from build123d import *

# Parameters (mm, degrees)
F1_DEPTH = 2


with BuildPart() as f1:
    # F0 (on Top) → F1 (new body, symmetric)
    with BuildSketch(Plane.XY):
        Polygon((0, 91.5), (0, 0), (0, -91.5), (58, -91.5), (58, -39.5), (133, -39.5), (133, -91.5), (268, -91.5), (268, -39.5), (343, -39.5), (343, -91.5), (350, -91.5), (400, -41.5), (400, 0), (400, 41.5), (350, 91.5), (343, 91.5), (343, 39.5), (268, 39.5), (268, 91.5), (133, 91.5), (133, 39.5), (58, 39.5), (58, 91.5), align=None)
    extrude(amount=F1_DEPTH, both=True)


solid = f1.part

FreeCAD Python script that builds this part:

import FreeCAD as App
import Part
import Sketcher

V = App.Vector
Q = App.Units.Quantity

doc = App.newDocument("Part")
body = doc.addObject("PartDesign::Body", "Body")

# Sketch on XY plane
sketch1 = body.newObject("Sketcher::SketchObject", "Sketch")
sketch1.AttachmentSupport = (doc.getObject("XY_Plane"), [""])
sketch1.MapMode = "FlatFace"
sketch1.addGeometry([
    Part.LineSegment(V(0, 92, 0), V(0, -92, 0)),  # 0
    Part.LineSegment(V(0, -92, 0), V(58, -92, 0)),  # 1
    Part.LineSegment(V(58, -92, 0), V(58, -40, 0)),  # 2
    Part.LineSegment(V(58, -40, 0), V(133, -40, 0)),  # 3
    Part.LineSegment(V(133, -40, 0), V(133, -92, 0)),  # 4
    Part.LineSegment(V(133, -92, 0), V(268, -92, 0)),  # 5
    Part.LineSegment(V(268, -92, 0), V(268, -40, 0)),  # 6
    Part.LineSegment(V(268, -40, 0), V(343, -40, 0)),  # 7
    Part.LineSegment(V(343, -40, 0), V(343, -92, 0)),  # 8
    Part.LineSegment(V(343, -92, 0), V(350, -92, 0)),  # 9
    Part.LineSegment(V(350, -92, 0), V(400, -42, 0)),  # 10
    Part.LineSegment(V(400, -42, 0), V(400, 42, 0)),  # 11
    Part.LineSegment(V(400, 42, 0), V(350, 92, 0)),  # 12
    Part.LineSegment(V(350, 92, 0), V(343, 92, 0)),  # 13
    Part.LineSegment(V(343, 92, 0), V(343, 40, 0)),  # 14
    Part.LineSegment(V(343, 40, 0), V(268, 40, 0)),  # 15
    Part.LineSegment(V(268, 40, 0), V(268, 92, 0)),  # 16
    Part.LineSegment(V(268, 92, 0), V(133, 92, 0)),  # 17
    Part.LineSegment(V(133, 92, 0), V(133, 40, 0)),  # 18
    Part.LineSegment(V(133, 40, 0), V(58, 40, 0)),  # 19
    Part.LineSegment(V(58, 40, 0), V(58, 92, 0)),  # 20
    Part.LineSegment(V(58, 92, 0), V(0, 92, 0)),  # 21
], False)
sketch1.addConstraint([
    Sketcher.Constraint("Coincident", 0, 2, 1, 1),
    Sketcher.Constraint("Coincident", 1, 2, 2, 1),
    Sketcher.Constraint("Coincident", 2, 2, 3, 1),
    Sketcher.Constraint("Coincident", 3, 2, 4, 1),
    Sketcher.Constraint("Coincident", 4, 2, 5, 1),
    Sketcher.Constraint("Coincident", 5, 2, 6, 1),
    Sketcher.Constraint("Coincident", 6, 2, 7, 1),
    Sketcher.Constraint("Coincident", 7, 2, 8, 1),
    Sketcher.Constraint("Coincident", 8, 2, 9, 1),
    Sketcher.Constraint("Coincident", 9, 2, 10, 1),
    Sketcher.Constraint("Coincident", 10, 2, 11, 1),
    Sketcher.Constraint("Coincident", 11, 2, 12, 1),
    Sketcher.Constraint("Coincident", 12, 2, 13, 1),
    Sketcher.Constraint("Coincident", 13, 2, 14, 1),
    Sketcher.Constraint("Coincident", 14, 2, 15, 1),
    Sketcher.Constraint("Coincident", 15, 2, 16, 1),
    Sketcher.Constraint("Coincident", 16, 2, 17, 1),
    Sketcher.Constraint("Coincident", 17, 2, 18, 1),
    Sketcher.Constraint("Coincident", 18, 2, 19, 1),
    Sketcher.Constraint("Coincident", 19, 2, 20, 1),
    Sketcher.Constraint("Coincident", 20, 2, 21, 1),
    Sketcher.Constraint("Coincident", 21, 2, 0, 1),
    Sketcher.Constraint("Vertical", 0),
    Sketcher.Constraint("Horizontal", 1),
    Sketcher.Constraint("Vertical", 2),
    Sketcher.Constraint("Horizontal", 3),
    Sketcher.Constraint("Vertical", 4),
    Sketcher.Constraint("Horizontal", 5),
    Sketcher.Constraint("Vertical", 6),
    Sketcher.Constraint("Horizontal", 7),
    Sketcher.Constraint("Vertical", 8),
    Sketcher.Constraint("Horizontal", 9),
    Sketcher.Constraint("Vertical", 11),
    Sketcher.Constraint("Horizontal", 13),
    Sketcher.Constraint("Vertical", 14),
    Sketcher.Constraint("Horizontal", 15),
    Sketcher.Constraint("Vertical", 16),
    Sketcher.Constraint("Horizontal", 17),
    Sketcher.Constraint("Vertical", 18),
    Sketcher.Constraint("Horizontal", 19),
    Sketcher.Constraint("Vertical", 20),
    Sketcher.Constraint("Horizontal", 21),
    Sketcher.Constraint("Symmetric", 0, 2, 21, 2, -1, 1),
    Sketcher.Constraint("Symmetric", 9, 2, 12, 2, -1),
    Sketcher.Constraint("Symmetric", 7, 2, 14, 2, -1),
    Sketcher.Constraint("Symmetric", 5, 2, 16, 2, -1),
    Sketcher.Constraint("Symmetric", 3, 2, 18, 2, -1),
    Sketcher.Constraint("Perpendicular", 10, 12),
    Sketcher.Constraint("Horizontal", 1, 2, 4, 2),
    Sketcher.Constraint("Horizontal", 3, 2, 6, 2),
    Sketcher.Constraint("Horizontal", 5, 2, 8, 2),
    Sketcher.Constraint("Vertical", 2, 2, 19, 2),
    Sketcher.Constraint("Equal", 3, 7),
    Sketcher.Constraint("Equal", 10, 12),
    Sketcher.Constraint("DistanceX", 1, 1, 1, 2, Q("58 mm")),
    Sketcher.Constraint("DistanceX", 3, 1, 3, 2, Q("75 mm")),
    Sketcher.Constraint("DistanceX", 5, 1, 5, 2, Q("135 mm")),
    Sketcher.Constraint("DistanceX", 9, 1, 9, 2, Q("7 mm")),
    Sketcher.Constraint("DistanceY", 0, 2, 0, 1, Q("183 mm")),
    Sketcher.Constraint("DistanceY", 2, 1, 2, 2, Q("52 mm")),
    Sketcher.Constraint("DistanceY", 11, 1, 11, 2, Q("83 mm")),
])
pad1 = body.newObject("PartDesign::Pad", "Pad")
pad1.Profile = sketch1
pad1.Length = 4
pad1.Midplane = True

doc.recompute()
